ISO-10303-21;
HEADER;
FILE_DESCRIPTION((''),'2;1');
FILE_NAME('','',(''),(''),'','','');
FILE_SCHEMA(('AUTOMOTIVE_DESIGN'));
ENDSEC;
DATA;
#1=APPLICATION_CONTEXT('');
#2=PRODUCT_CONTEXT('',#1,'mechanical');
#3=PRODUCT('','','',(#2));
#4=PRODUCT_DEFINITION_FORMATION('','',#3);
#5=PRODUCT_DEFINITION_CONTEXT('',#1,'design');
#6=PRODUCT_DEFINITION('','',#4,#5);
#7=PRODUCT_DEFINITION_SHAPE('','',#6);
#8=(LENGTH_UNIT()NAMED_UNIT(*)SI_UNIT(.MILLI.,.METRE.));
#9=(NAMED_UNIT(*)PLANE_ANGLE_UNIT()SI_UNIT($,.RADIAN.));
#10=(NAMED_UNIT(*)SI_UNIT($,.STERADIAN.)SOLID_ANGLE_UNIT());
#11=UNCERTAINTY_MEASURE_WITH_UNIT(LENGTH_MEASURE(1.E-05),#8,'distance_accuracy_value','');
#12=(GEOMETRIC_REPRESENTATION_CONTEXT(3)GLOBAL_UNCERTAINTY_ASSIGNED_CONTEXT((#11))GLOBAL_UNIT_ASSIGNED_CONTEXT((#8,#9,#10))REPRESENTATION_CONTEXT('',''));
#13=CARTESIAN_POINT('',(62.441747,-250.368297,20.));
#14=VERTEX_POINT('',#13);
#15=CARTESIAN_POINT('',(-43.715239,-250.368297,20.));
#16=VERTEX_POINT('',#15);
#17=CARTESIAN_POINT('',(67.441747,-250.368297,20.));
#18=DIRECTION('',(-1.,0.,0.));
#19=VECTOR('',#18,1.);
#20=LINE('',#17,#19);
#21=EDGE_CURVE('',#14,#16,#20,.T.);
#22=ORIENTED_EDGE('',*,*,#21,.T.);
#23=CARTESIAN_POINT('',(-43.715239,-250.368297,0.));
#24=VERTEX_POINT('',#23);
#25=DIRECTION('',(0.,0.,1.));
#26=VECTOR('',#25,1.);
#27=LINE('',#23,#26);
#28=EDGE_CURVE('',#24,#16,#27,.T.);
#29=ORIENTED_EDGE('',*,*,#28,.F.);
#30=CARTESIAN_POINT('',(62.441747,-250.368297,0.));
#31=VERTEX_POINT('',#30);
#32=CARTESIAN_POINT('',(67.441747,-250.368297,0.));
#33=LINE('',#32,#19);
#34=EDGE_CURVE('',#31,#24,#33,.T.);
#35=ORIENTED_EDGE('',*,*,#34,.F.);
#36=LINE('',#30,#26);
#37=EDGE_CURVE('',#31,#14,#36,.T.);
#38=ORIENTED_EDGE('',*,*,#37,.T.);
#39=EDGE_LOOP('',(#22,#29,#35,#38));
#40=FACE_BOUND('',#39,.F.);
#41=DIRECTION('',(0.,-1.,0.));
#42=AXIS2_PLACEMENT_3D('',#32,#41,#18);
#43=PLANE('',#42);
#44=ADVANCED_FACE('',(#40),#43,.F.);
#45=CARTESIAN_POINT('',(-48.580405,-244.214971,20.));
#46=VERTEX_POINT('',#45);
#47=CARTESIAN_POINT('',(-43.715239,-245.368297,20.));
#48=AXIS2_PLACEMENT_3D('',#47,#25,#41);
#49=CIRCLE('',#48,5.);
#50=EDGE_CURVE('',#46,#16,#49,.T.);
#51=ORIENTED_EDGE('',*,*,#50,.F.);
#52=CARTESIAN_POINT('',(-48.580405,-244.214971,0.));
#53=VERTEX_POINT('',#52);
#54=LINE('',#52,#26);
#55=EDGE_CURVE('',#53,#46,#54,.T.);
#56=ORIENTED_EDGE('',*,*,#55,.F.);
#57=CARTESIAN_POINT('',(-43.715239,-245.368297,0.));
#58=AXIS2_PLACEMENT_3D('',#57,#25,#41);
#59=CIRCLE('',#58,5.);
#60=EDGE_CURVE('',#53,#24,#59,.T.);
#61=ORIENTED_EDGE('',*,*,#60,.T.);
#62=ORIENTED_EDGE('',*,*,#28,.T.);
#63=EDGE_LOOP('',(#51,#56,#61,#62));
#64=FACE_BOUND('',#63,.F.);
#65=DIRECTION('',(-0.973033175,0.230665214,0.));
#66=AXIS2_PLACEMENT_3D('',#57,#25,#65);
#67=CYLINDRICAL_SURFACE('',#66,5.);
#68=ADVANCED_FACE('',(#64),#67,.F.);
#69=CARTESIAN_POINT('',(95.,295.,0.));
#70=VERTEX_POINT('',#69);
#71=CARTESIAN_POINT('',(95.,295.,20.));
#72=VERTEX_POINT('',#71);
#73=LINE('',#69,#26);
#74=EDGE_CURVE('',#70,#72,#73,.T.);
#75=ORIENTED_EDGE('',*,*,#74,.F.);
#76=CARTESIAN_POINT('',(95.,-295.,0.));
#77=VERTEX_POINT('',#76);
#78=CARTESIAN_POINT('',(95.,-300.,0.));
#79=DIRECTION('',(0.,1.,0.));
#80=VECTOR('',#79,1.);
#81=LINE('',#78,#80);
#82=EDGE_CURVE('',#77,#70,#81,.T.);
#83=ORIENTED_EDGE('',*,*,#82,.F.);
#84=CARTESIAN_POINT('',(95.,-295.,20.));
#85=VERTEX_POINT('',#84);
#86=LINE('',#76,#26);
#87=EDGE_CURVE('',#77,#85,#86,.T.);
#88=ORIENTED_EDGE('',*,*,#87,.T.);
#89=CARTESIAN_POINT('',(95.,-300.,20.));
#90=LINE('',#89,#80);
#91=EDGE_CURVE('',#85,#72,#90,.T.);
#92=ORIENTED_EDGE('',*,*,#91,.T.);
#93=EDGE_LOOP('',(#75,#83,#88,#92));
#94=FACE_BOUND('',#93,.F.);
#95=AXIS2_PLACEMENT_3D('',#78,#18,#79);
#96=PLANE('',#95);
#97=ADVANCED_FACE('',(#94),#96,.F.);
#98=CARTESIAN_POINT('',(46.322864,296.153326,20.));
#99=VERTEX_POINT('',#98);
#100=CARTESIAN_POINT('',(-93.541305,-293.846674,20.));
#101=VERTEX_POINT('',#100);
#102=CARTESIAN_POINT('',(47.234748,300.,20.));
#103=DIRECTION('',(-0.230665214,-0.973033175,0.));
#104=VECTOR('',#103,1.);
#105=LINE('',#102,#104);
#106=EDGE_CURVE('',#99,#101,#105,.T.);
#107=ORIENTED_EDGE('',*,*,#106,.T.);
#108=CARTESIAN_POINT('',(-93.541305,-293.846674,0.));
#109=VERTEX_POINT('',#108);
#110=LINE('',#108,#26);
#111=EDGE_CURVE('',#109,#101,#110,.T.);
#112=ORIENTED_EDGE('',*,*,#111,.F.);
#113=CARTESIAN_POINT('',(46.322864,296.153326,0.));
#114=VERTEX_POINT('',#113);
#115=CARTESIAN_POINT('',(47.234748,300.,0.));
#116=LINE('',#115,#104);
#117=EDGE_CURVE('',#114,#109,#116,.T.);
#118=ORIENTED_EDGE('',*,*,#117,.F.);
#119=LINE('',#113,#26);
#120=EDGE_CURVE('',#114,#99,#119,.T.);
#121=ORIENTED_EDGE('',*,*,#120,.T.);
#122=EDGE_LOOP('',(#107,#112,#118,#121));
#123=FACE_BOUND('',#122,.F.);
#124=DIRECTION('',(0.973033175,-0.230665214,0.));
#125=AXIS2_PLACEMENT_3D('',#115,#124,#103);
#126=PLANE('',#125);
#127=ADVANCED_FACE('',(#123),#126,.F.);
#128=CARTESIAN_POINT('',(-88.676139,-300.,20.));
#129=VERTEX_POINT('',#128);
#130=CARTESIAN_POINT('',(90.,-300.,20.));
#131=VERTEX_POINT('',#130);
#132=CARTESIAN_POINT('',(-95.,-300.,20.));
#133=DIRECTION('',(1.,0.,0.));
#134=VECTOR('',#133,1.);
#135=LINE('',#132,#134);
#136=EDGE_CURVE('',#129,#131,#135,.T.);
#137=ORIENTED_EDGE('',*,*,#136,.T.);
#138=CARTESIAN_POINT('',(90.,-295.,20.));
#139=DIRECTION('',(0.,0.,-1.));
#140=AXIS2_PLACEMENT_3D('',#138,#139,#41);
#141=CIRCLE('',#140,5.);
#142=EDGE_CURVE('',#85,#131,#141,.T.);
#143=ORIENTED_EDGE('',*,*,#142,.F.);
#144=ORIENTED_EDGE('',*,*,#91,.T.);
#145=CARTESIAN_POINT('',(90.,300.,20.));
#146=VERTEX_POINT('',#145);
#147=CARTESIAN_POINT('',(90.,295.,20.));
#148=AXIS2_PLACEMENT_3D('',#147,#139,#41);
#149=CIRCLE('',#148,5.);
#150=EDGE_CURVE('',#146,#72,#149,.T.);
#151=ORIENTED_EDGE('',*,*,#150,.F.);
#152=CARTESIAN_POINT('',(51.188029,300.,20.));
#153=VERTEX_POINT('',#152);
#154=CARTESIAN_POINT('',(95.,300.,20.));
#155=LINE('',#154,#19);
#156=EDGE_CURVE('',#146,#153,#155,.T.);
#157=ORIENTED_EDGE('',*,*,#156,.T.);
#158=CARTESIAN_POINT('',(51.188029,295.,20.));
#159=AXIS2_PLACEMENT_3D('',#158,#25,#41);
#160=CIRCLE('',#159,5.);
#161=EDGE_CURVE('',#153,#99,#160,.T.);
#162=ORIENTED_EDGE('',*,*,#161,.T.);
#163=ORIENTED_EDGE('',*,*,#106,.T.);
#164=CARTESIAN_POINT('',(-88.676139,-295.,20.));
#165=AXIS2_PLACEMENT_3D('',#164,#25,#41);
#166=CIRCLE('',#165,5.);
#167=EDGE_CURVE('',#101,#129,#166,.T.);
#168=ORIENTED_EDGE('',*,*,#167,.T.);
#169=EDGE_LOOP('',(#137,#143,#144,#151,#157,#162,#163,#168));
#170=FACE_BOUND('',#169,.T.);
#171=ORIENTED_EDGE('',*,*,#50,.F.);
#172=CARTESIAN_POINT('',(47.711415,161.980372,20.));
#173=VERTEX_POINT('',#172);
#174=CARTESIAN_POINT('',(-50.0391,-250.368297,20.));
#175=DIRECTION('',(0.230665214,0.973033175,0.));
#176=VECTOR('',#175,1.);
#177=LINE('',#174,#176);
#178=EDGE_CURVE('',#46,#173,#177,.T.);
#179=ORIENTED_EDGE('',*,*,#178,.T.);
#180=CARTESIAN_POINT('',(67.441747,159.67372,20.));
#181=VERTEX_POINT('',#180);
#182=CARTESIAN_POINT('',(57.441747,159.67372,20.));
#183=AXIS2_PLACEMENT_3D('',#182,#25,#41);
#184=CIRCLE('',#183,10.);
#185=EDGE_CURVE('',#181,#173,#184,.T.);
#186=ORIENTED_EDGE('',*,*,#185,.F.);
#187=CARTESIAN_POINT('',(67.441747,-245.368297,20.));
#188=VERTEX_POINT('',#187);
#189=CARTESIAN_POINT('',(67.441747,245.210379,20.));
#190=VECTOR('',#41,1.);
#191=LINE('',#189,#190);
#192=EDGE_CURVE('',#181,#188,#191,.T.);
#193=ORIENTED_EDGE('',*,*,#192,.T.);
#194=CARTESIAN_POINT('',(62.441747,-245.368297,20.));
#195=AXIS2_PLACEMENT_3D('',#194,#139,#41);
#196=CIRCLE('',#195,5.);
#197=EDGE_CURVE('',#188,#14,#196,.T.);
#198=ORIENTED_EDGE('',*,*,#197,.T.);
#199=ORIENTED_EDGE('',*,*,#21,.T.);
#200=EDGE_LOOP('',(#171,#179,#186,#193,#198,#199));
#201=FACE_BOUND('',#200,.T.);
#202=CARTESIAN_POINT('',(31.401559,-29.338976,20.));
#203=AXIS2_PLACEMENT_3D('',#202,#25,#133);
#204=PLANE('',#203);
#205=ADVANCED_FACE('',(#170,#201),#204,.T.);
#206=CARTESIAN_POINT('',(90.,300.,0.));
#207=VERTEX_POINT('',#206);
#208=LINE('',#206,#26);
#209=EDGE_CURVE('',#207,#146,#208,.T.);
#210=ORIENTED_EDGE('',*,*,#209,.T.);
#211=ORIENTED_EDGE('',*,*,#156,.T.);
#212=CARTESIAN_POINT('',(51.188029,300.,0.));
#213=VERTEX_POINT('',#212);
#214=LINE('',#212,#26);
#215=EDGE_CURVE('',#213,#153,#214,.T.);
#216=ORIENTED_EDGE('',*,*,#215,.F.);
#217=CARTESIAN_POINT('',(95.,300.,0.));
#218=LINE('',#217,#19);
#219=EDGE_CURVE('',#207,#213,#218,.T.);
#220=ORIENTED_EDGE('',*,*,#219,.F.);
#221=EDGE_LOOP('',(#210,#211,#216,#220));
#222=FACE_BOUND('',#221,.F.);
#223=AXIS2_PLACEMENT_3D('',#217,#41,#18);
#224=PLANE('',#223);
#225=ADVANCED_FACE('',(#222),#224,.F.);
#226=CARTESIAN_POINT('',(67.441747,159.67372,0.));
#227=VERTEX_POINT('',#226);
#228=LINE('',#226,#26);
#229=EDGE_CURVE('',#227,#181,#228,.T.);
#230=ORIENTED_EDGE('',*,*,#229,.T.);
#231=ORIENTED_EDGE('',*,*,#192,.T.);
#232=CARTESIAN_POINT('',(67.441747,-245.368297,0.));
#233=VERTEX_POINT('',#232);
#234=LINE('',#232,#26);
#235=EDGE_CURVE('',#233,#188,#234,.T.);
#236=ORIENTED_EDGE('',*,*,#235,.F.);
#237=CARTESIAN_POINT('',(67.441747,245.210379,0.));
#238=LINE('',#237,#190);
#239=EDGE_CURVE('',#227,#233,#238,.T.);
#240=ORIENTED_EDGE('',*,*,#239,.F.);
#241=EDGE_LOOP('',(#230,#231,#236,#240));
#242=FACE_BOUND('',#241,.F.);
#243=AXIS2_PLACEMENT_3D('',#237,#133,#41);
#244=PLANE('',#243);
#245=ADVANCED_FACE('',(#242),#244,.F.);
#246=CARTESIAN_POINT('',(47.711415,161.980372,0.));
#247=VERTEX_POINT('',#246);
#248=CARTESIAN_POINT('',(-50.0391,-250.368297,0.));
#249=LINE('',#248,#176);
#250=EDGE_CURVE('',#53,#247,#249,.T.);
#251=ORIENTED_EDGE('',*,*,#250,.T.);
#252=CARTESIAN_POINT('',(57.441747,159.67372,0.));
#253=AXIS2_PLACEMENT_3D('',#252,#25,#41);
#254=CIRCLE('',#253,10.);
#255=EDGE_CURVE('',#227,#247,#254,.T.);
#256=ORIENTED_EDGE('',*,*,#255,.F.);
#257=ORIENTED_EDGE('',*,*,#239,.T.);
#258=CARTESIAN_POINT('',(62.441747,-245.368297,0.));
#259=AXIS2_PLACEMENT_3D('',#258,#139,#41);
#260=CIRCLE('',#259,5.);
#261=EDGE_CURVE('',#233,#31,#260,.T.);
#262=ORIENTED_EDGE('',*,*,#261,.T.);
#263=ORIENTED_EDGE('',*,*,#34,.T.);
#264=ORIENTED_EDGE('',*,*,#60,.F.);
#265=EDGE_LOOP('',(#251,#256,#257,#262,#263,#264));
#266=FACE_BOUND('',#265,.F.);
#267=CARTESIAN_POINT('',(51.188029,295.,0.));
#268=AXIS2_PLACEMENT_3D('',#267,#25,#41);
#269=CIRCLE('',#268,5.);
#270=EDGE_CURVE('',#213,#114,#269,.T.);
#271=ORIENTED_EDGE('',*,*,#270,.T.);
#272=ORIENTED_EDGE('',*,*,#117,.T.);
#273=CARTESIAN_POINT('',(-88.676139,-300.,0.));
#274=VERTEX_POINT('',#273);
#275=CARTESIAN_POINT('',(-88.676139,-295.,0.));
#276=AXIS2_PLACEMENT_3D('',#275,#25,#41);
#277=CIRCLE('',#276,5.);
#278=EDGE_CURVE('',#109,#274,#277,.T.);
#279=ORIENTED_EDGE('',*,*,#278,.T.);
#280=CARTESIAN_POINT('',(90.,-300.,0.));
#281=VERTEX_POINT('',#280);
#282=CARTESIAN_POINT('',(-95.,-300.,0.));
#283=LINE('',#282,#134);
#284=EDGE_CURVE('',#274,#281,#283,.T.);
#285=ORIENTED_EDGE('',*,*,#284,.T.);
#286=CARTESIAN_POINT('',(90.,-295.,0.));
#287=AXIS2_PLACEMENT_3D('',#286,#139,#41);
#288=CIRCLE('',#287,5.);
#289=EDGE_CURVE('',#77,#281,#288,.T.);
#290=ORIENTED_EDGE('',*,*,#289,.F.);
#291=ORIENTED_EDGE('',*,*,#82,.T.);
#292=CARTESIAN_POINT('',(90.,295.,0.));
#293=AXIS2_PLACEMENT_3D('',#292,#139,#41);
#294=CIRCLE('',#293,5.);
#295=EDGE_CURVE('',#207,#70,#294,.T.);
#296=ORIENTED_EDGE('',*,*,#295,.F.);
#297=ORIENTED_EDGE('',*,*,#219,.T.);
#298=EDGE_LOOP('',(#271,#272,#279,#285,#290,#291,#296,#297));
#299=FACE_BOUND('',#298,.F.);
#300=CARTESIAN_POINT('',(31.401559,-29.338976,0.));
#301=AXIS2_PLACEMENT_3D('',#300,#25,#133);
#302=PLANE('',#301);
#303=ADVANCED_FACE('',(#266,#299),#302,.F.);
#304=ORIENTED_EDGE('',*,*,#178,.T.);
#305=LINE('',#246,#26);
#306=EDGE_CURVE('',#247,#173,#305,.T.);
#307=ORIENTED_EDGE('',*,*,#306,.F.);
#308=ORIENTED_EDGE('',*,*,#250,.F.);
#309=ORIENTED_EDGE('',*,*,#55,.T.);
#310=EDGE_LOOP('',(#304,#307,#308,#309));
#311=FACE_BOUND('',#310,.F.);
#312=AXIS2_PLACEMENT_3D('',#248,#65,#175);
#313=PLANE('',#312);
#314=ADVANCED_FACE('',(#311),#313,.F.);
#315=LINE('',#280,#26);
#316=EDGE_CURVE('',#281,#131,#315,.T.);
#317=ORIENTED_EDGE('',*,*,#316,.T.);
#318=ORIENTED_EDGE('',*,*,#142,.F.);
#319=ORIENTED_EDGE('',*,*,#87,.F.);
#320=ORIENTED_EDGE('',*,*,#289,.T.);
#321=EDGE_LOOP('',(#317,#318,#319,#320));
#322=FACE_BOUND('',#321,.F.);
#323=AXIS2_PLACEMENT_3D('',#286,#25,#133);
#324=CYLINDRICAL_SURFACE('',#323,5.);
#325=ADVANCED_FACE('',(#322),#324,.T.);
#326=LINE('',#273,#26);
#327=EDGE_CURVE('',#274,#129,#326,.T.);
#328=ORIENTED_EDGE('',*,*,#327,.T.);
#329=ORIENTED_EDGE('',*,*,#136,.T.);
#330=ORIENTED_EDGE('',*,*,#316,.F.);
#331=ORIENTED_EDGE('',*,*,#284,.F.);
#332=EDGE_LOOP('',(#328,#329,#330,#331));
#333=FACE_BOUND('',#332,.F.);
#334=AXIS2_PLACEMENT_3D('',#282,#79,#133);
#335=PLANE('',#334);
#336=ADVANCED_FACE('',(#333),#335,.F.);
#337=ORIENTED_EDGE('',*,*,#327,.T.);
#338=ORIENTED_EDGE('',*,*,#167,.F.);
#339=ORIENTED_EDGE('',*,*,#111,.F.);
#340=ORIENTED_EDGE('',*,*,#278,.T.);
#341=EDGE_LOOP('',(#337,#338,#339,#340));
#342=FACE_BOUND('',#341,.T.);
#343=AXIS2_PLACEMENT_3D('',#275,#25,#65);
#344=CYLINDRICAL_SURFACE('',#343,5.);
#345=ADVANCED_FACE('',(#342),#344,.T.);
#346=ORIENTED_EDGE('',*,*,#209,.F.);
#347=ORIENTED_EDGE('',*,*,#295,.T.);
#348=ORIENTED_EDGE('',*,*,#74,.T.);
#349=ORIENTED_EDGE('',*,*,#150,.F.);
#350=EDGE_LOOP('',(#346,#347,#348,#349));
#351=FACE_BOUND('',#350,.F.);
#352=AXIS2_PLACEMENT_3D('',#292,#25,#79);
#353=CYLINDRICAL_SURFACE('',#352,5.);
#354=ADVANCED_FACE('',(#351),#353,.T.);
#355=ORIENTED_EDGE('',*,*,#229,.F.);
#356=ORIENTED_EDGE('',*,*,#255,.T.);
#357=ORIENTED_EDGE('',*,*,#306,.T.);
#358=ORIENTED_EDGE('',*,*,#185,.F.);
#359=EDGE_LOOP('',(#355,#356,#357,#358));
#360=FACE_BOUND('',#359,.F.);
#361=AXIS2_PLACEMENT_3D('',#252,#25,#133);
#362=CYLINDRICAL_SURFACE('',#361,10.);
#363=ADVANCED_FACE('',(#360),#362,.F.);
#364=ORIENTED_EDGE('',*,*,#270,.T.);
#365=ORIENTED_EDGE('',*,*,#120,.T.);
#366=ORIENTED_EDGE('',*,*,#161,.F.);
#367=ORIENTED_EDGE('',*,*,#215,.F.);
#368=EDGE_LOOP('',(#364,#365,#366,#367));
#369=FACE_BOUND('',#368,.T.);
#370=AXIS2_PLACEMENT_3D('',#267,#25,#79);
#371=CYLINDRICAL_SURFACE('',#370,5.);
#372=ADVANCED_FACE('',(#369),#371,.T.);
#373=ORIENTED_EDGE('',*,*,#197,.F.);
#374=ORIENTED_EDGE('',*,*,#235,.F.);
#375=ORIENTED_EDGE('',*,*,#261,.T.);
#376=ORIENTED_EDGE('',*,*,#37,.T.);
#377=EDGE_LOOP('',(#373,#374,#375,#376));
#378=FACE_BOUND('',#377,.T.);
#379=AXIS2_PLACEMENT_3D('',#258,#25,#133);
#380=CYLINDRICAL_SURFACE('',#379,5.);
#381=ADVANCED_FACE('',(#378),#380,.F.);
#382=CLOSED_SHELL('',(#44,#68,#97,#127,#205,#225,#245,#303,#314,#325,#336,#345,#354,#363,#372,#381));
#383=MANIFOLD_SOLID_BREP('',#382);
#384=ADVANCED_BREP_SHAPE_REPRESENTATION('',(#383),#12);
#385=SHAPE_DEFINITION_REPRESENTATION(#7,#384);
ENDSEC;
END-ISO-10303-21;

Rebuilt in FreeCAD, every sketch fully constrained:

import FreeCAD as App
import Part
import Sketcher
from FreeCAD import Vector


def edges_at(feature, points):
    """Names of the edges that pass closest to the given points."""
    edges = feature.Shape.Edges
    near = lambda p: min(range(len(edges)), key=lambda i: edges[i].distToShape(Part.Vertex(*p))[0])
    return sorted({f"Edge{near(p) + 1}" for p in points})


def add_polygon(sketch, points):
    """Adds a closed chain of lines whose ends are joined by coincident constraints."""
    first, n = sketch.GeometryCount, len(points)
    for a, b in zip(points, points[1:] + points[:1]):
        sketch.addGeometry(Part.LineSegment(App.Vector(*a, 0), App.Vector(*b, 0)), False)
    for i in range(n):
        sketch.addConstraint(Sketcher.Constraint("Coincident", first + i, 2, first + (i + 1) % n, 1))

doc = App.newDocument("Part")
body = doc.addObject("PartDesign::Body", "Body")

sketch1 = body.newObject("Sketcher::SketchObject", "Sketch")
sketch1.AttachmentSupport = (doc.getObject("XY_Plane"), [""])
sketch1.MapMode = "FlatFace"
add_polygon(sketch1, [(95, 300), (47, 300), (-95, -300), (95, -300)])
add_polygon(sketch1, [(67, 245), (67, -250), (-50, -250)])
sketch1.addConstraint(Sketcher.Constraint("Horizontal", 0))
sketch1.addConstraint(Sketcher.Constraint("Horizontal", 2))
sketch1.addConstraint(Sketcher.Constraint("Vertical", 3))
sketch1.addConstraint(Sketcher.Constraint("Vertical", 4))
sketch1.addConstraint(Sketcher.Constraint("Horizontal", 5))
sketch1.addConstraint(Sketcher.Constraint("Symmetric", 1, 2, 3, 2, -1, 1))
sketch1.addConstraint(Sketcher.Constraint("Parallel", 1, 6))
sketch1.addConstraint(Sketcher.Constraint("DistanceX", 2, 1, 2, 2, 190.0))
sketch1.addConstraint(Sketcher.Constraint("DistanceY", 3, 1, 3, 2, 600.0))
sketch1.addConstraint(Sketcher.Constraint("DistanceX", 0, 2, 4, 2, 20.206999))
sketch1.addConstraint(Sketcher.Constraint("DistanceX", 0, 2, 0, 1, 47.765252))
sketch1.addConstraint(Sketcher.Constraint("DistanceX", 5, 2, -1, 1, 50.0391))
sketch1.addConstraint(Sketcher.Constraint("DistanceY", -1, 1, 6, 2, 245.210379))
pad1 = body.newObject("PartDesign::Pad", "Pad")
pad1.Profile = sketch1
pad1.Length = 20
doc.recompute()

fillet = body.newObject("PartDesign::Fillet", "Fillet")
fillet.Base = (pad1, edges_at(pad1, [
    (95, 300, 10),
    (95, -300, 10),
    (-95, -300, 10),
    (67.442, -250.368, 10),
    (-50.039, -250.368, 10),
    (47.235, 300, 10),
]))
fillet.Radius = 5
doc.recompute()

fillet2 = body.newObject("PartDesign::Fillet", "Fillet001")
fillet2.Base = (fillet, edges_at(fillet, [(67.442, 245.21, 10)]))
fillet2.Radius = 10

doc.recompute()
